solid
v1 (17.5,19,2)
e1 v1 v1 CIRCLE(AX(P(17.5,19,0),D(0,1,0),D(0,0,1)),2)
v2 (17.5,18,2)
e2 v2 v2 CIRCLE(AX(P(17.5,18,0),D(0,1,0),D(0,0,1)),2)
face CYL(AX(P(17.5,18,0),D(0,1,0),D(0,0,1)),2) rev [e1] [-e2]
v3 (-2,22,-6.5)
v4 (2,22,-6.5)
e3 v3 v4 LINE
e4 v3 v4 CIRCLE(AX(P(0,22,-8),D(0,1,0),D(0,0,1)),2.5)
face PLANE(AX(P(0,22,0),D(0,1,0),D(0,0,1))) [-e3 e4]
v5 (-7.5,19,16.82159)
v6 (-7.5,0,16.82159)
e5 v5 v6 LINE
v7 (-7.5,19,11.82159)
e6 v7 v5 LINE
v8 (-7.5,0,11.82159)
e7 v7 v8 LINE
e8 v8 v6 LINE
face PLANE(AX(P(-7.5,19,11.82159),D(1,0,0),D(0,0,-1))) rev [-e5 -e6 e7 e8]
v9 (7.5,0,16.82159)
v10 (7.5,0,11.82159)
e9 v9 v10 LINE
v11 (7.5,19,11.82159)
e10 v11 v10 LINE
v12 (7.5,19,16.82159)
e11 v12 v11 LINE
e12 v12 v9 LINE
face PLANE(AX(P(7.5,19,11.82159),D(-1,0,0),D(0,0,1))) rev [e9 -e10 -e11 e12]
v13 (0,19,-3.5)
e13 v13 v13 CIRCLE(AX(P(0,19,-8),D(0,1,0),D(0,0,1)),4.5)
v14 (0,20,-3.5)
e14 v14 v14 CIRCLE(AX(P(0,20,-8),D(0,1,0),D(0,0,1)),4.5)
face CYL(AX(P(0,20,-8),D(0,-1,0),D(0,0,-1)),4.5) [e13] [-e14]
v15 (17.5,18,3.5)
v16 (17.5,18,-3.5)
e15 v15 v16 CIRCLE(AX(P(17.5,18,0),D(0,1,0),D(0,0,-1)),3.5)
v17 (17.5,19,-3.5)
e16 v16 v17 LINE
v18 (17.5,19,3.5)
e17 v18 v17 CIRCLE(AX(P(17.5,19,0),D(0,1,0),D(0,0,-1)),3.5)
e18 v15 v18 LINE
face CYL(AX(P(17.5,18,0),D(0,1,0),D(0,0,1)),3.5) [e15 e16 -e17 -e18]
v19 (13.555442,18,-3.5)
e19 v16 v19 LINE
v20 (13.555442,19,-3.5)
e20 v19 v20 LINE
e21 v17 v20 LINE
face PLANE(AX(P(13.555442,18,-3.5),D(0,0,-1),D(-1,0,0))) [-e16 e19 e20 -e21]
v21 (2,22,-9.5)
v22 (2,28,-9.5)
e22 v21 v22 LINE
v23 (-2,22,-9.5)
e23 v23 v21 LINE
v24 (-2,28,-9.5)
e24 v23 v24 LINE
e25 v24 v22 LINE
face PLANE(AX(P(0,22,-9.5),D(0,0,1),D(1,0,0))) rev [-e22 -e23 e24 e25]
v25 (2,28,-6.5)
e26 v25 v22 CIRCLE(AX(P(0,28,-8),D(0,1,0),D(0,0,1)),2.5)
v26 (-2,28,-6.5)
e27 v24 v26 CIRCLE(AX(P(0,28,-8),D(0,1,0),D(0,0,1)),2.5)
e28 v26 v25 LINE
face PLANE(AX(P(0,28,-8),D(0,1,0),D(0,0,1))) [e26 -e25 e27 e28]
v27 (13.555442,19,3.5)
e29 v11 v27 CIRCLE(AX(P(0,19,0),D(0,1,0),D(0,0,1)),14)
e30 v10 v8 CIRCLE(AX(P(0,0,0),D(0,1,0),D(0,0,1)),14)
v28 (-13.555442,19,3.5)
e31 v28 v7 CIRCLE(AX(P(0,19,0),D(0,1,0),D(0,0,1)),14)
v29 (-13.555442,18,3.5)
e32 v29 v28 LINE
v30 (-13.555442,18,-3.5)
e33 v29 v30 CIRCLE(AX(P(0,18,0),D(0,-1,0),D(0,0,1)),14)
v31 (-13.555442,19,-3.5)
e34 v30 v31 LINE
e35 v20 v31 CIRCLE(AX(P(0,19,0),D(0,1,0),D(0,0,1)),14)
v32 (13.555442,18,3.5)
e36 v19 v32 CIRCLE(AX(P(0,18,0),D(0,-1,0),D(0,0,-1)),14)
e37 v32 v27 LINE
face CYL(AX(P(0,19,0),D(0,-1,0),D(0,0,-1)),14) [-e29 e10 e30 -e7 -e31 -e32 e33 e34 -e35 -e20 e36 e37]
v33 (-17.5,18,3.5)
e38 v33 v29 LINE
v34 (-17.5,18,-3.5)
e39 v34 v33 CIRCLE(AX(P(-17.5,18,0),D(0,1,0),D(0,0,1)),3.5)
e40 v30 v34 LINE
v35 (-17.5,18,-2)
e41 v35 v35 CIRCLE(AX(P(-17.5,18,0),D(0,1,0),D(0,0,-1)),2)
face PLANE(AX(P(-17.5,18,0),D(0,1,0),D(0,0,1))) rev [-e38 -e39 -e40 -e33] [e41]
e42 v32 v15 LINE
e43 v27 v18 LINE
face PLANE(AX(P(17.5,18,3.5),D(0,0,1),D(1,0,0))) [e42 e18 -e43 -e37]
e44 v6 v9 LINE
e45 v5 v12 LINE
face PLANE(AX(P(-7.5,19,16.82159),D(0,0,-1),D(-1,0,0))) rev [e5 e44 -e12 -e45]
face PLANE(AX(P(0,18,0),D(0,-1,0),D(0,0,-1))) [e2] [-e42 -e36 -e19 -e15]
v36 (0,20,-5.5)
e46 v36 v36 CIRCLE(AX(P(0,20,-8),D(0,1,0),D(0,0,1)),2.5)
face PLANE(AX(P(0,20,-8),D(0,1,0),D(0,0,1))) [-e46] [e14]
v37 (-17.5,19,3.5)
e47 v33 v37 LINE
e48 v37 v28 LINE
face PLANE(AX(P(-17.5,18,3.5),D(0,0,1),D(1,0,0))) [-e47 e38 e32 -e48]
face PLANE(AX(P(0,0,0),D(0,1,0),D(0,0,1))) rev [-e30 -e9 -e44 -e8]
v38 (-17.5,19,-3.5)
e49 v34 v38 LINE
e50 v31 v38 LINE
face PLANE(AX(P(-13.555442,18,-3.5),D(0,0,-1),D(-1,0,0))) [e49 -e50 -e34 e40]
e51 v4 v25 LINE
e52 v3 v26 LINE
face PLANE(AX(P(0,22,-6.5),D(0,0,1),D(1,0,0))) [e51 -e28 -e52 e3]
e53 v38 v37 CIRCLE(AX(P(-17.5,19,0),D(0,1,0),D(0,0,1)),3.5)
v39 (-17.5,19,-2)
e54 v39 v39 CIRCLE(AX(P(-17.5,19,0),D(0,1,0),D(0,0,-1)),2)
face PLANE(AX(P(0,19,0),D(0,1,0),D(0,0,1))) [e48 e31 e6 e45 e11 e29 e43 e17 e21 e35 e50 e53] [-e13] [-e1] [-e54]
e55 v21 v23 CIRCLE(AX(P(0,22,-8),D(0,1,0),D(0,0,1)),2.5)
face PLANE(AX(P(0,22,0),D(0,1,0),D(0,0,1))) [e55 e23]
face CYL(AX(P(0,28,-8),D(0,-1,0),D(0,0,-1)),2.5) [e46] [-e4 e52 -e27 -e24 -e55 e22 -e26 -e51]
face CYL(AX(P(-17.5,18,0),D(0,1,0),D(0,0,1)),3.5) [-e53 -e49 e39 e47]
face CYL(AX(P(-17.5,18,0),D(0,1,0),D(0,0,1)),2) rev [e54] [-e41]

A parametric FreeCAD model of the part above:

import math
import FreeCAD as App
import Part
import Sketcher

V = App.Vector

doc = App.newDocument("Part")
body = doc.addObject("PartDesign::Body", "Body")

sketch1 = body.newObject("Sketcher::SketchObject", "Sketch")
sketch1.AttachmentSupport = (doc.getObject("XZ_Plane"), [""])
sketch1.MapMode = "FlatFace"
sketch1.addGeometry([
    Part.LineSegment(V(-8, 12, 0), V(-8, 17, 0)),
    Part.LineSegment(V(-8, 17, 0), V(8, 17, 0)),
    Part.LineSegment(V(8, 17, 0), V(8, 12, 0)),
    Part.ArcOfCircle(Part.Circle(V(0, 0, 0), V(0, 0, 1), 14), math.radians(122), math.radians(418)),
], False)
sketch1.addConstraint([
    Sketcher.Constraint("Coincident", 0, 2, 1, 1),
    Sketcher.Constraint("Coincident", 1, 2, 2, 1),
    Sketcher.Constraint("Coincident", 2, 2, 3, 2),
    Sketcher.Constraint("Coincident", 3, 1, 0, 1),
    Sketcher.Constraint("Vertical", 0),
    Sketcher.Constraint("Horizontal", 1),
    Sketcher.Constraint("Vertical", 2),
    Sketcher.Constraint("Coincident", 3, 3, -1, 1),
    Sketcher.Constraint("Horizontal", 2, 2, 3, 1),
    Sketcher.Constraint("Radius", 3, 14.0),
    Sketcher.Constraint("DistanceX", 1, 1, 1, 2, 15.0),
    Sketcher.Constraint("DistanceY", 0, 1, 0, 2, 5.0),
])
pad1 = body.newObject("PartDesign::Pad", "Pad")
pad1.Profile = sketch1
pad1.Length = 19
pad1.Reversed = True

sketch2 = body.newObject("Sketcher::SketchObject", "Sketch001")
sketch2.AttachmentSupport = (doc.getObject("XZ_Plane"), [""])
sketch2.MapMode = "FlatFace"
sketch2.AttachmentOffset = App.Placement(V(0, 0, -19), App.Rotation())
sketch2.addGeometry([
    Part.LineSegment(V(17.5, -3.5, 0), V(13.6, -3.5, 0)),
    Part.ArcOfCircle(Part.Circle(V(0, 0, 0), V(0, 0, 1), 14), math.radians(-14), math.radians(14)),
    Part.LineSegment(V(13.6, 3.5, 0), V(17.5, 3.5, 0)),
    Part.ArcOfCircle(Part.Circle(V(17.5, 0, 0), V(0, 0, 1), 3.5), math.radians(-90), math.radians(90)),
    Part.Circle(V(17.5, 0, 0), V(0, 0, 1), 2),
    Part.LineSegment(V(-17.5, 3.5, 0), V(-13.6, 3.5, 0)),
    Part.ArcOfCircle(Part.Circle(V(0, 0, 0), V(0, 0, 1), 14), math.radians(166), math.radians(194)),
    Part.LineSegment(V(-13.6, -3.5, 0), V(-17.5, -3.5, 0)),
    Part.ArcOfCircle(Part.Circle(V(-17.5, 0, 0), V(0, 0, 1), 3.5), math.radians(90), math.radians(270)),
    Part.Circle(V(-17.5, 0, 0), V(0, 0, 1), 2),
], False)
sketch2.addConstraint([
    Sketcher.Constraint("Coincident", 0, 2, 1, 1),
    Sketcher.Constraint("Coincident", 1, 2, 2, 1),
    Sketcher.Constraint("Tangent", 2, 2, 3, 2),
    Sketcher.Constraint("Tangent", 3, 1, 0, 1),
    Sketcher.Constraint("Coincident", 5, 2, 6, 1),
    Sketcher.Constraint("Coincident", 6, 2, 7, 1),
    Sketcher.Constraint("Tangent", 7, 2, 8, 2),
    Sketcher.Constraint("Tangent", 8, 1, 5, 1),
    Sketcher.Constraint("Horizontal", 0),
    Sketcher.Constraint("Horizontal", 2),
    Sketcher.Constraint("Horizontal", 5),
    Sketcher.Constraint("Horizontal", 7),
    Sketcher.Constraint("Coincident", 1, 3, -1, 1),
    Sketcher.Constraint("Coincident", 6, 3, -1, 1),
    Sketcher.Constraint("Coincident", 4, 3, 3, 3),
    Sketcher.Constraint("Coincident", 9, 3, 8, 3),
    Sketcher.Constraint("Equal", 1, 6),
    Sketcher.Constraint("Equal", 3, 8),
    Sketcher.Constraint("Equal", 4, 9),
    Sketcher.Constraint("Symmetric", 3, 3, 8, 3, -1, 1),
    Sketcher.Constraint("PointOnObject", 3, 3, -1),
    Sketcher.Constraint("Diameter", 4, 4.0),
    Sketcher.Constraint("Radius", 1, 14.0),
    Sketcher.Constraint("Radius", 3, 3.5),
    Sketcher.Constraint("DistanceX", 8, 3, 3, 3, 35.0),
])
pad2 = body.newObject("PartDesign::Pad", "Pad001")
pad2.Profile = sketch2
pad2.Length = 1

sketch3 = body.newObject("Sketcher::SketchObject", "Sketch002")
sketch3.AttachmentSupport = (doc.getObject("XZ_Plane"), [""])
sketch3.MapMode = "FlatFace"
sketch3.AttachmentOffset = App.Placement(V(0, 0, -19), App.Rotation())
sketch3.addGeometry(Part.Circle(V(0, -8, 0), V(0, 0, 1), 4.5), False)
sketch3.addConstraint([
    Sketcher.Constraint("PointOnObject", 0, 3, -2),
    Sketcher.Constraint("Diameter", 0, 9.0),
    Sketcher.Constraint("DistanceY", 0, 3, -1, 1, 8.0),
])
pad3 = body.newObject("PartDesign::Pad", "Pad002")
pad3.Profile = sketch3
pad3.Length = 1
pad3.Reversed = True

sketch4 = body.newObject("Sketcher::SketchObject", "Sketch003")
sketch4.AttachmentSupport = (doc.getObject("XZ_Plane"), [""])
sketch4.MapMode = "FlatFace"
sketch4.AttachmentOffset = App.Placement(V(0, 0, -20), App.Rotation())
sketch4.addGeometry(Part.Circle(V(0, -8, 0), V(0, 0, 1), 2.5), False)
sketch4.addConstraint([
    Sketcher.Constraint("PointOnObject", 0, 3, -2),
    Sketcher.Constraint("Diameter", 0, 5.0),
    Sketcher.Constraint("DistanceY", 0, 3, -1, 1, 8.0),
])
pad4 = body.newObject("PartDesign::Pad", "Pad003")
pad4.Profile = sketch4
pad4.Length = 8
pad4.Reversed = True

sketch5 = body.newObject("Sketcher::SketchObject", "Sketch004")
sketch5.AttachmentSupport = (doc.getObject("XZ_Plane"), [""])
sketch5.MapMode = "FlatFace"
sketch5.AttachmentOffset = App.Placement(V(0, 0, -28), App.Rotation())
sketch5.addGeometry([
    Part.LineSegment(V(2, -6.5, 0), V(-2, -6.5, 0)),
    Part.ArcOfCircle(Part.Circle(V(0, -8, 0), V(0, 0, 1), 2.5), math.radians(37), math.radians(143)),
    Part.ArcOfCircle(Part.Circle(V(0, -8, 0), V(0, 0, 1), 2.5), math.radians(-143), math.radians(-37)),
    Part.LineSegment(V(-2, -9.5, 0), V(2, -9.5, 0)),
], False)
sketch5.addConstraint([
    Sketcher.Constraint("Coincident", 0, 1, 1, 1),
    Sketcher.Constraint("Coincident", 1, 2, 0, 2),
    Sketcher.Constraint("Coincident", 2, 1, 3, 1),
    Sketcher.Constraint("Coincident", 3, 2, 2, 2),
    Sketcher.Constraint("Horizontal", 0),
    Sketcher.Constraint("Horizontal", 3),
    Sketcher.Constraint("Coincident", 2, 3, 1, 3),
    Sketcher.Constraint("Equal", 1, 2),
    Sketcher.Constraint("PointOnObject", 1, 3, -2),
    Sketcher.Constraint("Vertical", 1, 2, 2, 1),
    Sketcher.Constraint("Radius", 1, 2.5),
    Sketcher.Constraint("DistanceX", 0, 2, 0, 1, 4.0),
    Sketcher.Constraint("DistanceY", 1, 3, -1, 1, 8.0),
])
pocket1 = body.newObject("PartDesign::Pocket", "Pocket")
pocket1.Profile = sketch5
pocket1.Length = 6
pocket1.Reversed = True

doc.recompute()
